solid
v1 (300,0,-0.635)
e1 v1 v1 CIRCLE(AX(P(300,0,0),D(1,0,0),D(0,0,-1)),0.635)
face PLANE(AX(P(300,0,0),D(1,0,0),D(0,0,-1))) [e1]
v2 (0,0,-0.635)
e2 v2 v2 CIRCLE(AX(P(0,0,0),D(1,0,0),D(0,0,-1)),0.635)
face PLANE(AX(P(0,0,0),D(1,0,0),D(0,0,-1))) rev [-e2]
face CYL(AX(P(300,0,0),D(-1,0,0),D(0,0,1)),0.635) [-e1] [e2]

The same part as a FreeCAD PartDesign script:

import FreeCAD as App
import Part
import Sketcher
Q = App.Units.Quantity

doc = App.newDocument("Part")
params = doc.addObject("Spreadsheet::Sheet", "Params")
for row, (alias, value) in enumerate([
    ("sketch1_diameter", "1.27 mm"),
    ("pad1_length", "300 mm"),
], start=1):
    params.set(f"A{row}", alias)
    params.set(f"B{row}", "=" + value)
    params.setAlias(f"B{row}", alias)

body = doc.addObject("PartDesign::Body", "Body")

# Sketch on YZ plane
sketch1 = doc.addObject("Sketcher::SketchObject", "Sketch")
body.addObject(sketch1)
sketch1.AttachmentSupport = (doc.YZ_Plane, [""])
sketch1.MapMode = "FlatFace"
sketch1.addGeometry(Part.Circle(App.Vector(0, 0, 0), App.Vector(0, 0, 1), 0.6), False)
sketch1.addConstraint([
    Sketcher.Constraint("Coincident", 0, 3, -1, 1),
    Sketcher.Constraint("Diameter", 0, Q("1.27 mm")),
])
sketch1.setExpression("Constraints[1]", "Params.sketch1_diameter")
pad1 = doc.addObject("PartDesign::Pad", "Pad")
body.addObject(pad1)
pad1.Profile = sketch1
pad1.setExpression("Length", "Params.pad1_length")

doc.recompute()
